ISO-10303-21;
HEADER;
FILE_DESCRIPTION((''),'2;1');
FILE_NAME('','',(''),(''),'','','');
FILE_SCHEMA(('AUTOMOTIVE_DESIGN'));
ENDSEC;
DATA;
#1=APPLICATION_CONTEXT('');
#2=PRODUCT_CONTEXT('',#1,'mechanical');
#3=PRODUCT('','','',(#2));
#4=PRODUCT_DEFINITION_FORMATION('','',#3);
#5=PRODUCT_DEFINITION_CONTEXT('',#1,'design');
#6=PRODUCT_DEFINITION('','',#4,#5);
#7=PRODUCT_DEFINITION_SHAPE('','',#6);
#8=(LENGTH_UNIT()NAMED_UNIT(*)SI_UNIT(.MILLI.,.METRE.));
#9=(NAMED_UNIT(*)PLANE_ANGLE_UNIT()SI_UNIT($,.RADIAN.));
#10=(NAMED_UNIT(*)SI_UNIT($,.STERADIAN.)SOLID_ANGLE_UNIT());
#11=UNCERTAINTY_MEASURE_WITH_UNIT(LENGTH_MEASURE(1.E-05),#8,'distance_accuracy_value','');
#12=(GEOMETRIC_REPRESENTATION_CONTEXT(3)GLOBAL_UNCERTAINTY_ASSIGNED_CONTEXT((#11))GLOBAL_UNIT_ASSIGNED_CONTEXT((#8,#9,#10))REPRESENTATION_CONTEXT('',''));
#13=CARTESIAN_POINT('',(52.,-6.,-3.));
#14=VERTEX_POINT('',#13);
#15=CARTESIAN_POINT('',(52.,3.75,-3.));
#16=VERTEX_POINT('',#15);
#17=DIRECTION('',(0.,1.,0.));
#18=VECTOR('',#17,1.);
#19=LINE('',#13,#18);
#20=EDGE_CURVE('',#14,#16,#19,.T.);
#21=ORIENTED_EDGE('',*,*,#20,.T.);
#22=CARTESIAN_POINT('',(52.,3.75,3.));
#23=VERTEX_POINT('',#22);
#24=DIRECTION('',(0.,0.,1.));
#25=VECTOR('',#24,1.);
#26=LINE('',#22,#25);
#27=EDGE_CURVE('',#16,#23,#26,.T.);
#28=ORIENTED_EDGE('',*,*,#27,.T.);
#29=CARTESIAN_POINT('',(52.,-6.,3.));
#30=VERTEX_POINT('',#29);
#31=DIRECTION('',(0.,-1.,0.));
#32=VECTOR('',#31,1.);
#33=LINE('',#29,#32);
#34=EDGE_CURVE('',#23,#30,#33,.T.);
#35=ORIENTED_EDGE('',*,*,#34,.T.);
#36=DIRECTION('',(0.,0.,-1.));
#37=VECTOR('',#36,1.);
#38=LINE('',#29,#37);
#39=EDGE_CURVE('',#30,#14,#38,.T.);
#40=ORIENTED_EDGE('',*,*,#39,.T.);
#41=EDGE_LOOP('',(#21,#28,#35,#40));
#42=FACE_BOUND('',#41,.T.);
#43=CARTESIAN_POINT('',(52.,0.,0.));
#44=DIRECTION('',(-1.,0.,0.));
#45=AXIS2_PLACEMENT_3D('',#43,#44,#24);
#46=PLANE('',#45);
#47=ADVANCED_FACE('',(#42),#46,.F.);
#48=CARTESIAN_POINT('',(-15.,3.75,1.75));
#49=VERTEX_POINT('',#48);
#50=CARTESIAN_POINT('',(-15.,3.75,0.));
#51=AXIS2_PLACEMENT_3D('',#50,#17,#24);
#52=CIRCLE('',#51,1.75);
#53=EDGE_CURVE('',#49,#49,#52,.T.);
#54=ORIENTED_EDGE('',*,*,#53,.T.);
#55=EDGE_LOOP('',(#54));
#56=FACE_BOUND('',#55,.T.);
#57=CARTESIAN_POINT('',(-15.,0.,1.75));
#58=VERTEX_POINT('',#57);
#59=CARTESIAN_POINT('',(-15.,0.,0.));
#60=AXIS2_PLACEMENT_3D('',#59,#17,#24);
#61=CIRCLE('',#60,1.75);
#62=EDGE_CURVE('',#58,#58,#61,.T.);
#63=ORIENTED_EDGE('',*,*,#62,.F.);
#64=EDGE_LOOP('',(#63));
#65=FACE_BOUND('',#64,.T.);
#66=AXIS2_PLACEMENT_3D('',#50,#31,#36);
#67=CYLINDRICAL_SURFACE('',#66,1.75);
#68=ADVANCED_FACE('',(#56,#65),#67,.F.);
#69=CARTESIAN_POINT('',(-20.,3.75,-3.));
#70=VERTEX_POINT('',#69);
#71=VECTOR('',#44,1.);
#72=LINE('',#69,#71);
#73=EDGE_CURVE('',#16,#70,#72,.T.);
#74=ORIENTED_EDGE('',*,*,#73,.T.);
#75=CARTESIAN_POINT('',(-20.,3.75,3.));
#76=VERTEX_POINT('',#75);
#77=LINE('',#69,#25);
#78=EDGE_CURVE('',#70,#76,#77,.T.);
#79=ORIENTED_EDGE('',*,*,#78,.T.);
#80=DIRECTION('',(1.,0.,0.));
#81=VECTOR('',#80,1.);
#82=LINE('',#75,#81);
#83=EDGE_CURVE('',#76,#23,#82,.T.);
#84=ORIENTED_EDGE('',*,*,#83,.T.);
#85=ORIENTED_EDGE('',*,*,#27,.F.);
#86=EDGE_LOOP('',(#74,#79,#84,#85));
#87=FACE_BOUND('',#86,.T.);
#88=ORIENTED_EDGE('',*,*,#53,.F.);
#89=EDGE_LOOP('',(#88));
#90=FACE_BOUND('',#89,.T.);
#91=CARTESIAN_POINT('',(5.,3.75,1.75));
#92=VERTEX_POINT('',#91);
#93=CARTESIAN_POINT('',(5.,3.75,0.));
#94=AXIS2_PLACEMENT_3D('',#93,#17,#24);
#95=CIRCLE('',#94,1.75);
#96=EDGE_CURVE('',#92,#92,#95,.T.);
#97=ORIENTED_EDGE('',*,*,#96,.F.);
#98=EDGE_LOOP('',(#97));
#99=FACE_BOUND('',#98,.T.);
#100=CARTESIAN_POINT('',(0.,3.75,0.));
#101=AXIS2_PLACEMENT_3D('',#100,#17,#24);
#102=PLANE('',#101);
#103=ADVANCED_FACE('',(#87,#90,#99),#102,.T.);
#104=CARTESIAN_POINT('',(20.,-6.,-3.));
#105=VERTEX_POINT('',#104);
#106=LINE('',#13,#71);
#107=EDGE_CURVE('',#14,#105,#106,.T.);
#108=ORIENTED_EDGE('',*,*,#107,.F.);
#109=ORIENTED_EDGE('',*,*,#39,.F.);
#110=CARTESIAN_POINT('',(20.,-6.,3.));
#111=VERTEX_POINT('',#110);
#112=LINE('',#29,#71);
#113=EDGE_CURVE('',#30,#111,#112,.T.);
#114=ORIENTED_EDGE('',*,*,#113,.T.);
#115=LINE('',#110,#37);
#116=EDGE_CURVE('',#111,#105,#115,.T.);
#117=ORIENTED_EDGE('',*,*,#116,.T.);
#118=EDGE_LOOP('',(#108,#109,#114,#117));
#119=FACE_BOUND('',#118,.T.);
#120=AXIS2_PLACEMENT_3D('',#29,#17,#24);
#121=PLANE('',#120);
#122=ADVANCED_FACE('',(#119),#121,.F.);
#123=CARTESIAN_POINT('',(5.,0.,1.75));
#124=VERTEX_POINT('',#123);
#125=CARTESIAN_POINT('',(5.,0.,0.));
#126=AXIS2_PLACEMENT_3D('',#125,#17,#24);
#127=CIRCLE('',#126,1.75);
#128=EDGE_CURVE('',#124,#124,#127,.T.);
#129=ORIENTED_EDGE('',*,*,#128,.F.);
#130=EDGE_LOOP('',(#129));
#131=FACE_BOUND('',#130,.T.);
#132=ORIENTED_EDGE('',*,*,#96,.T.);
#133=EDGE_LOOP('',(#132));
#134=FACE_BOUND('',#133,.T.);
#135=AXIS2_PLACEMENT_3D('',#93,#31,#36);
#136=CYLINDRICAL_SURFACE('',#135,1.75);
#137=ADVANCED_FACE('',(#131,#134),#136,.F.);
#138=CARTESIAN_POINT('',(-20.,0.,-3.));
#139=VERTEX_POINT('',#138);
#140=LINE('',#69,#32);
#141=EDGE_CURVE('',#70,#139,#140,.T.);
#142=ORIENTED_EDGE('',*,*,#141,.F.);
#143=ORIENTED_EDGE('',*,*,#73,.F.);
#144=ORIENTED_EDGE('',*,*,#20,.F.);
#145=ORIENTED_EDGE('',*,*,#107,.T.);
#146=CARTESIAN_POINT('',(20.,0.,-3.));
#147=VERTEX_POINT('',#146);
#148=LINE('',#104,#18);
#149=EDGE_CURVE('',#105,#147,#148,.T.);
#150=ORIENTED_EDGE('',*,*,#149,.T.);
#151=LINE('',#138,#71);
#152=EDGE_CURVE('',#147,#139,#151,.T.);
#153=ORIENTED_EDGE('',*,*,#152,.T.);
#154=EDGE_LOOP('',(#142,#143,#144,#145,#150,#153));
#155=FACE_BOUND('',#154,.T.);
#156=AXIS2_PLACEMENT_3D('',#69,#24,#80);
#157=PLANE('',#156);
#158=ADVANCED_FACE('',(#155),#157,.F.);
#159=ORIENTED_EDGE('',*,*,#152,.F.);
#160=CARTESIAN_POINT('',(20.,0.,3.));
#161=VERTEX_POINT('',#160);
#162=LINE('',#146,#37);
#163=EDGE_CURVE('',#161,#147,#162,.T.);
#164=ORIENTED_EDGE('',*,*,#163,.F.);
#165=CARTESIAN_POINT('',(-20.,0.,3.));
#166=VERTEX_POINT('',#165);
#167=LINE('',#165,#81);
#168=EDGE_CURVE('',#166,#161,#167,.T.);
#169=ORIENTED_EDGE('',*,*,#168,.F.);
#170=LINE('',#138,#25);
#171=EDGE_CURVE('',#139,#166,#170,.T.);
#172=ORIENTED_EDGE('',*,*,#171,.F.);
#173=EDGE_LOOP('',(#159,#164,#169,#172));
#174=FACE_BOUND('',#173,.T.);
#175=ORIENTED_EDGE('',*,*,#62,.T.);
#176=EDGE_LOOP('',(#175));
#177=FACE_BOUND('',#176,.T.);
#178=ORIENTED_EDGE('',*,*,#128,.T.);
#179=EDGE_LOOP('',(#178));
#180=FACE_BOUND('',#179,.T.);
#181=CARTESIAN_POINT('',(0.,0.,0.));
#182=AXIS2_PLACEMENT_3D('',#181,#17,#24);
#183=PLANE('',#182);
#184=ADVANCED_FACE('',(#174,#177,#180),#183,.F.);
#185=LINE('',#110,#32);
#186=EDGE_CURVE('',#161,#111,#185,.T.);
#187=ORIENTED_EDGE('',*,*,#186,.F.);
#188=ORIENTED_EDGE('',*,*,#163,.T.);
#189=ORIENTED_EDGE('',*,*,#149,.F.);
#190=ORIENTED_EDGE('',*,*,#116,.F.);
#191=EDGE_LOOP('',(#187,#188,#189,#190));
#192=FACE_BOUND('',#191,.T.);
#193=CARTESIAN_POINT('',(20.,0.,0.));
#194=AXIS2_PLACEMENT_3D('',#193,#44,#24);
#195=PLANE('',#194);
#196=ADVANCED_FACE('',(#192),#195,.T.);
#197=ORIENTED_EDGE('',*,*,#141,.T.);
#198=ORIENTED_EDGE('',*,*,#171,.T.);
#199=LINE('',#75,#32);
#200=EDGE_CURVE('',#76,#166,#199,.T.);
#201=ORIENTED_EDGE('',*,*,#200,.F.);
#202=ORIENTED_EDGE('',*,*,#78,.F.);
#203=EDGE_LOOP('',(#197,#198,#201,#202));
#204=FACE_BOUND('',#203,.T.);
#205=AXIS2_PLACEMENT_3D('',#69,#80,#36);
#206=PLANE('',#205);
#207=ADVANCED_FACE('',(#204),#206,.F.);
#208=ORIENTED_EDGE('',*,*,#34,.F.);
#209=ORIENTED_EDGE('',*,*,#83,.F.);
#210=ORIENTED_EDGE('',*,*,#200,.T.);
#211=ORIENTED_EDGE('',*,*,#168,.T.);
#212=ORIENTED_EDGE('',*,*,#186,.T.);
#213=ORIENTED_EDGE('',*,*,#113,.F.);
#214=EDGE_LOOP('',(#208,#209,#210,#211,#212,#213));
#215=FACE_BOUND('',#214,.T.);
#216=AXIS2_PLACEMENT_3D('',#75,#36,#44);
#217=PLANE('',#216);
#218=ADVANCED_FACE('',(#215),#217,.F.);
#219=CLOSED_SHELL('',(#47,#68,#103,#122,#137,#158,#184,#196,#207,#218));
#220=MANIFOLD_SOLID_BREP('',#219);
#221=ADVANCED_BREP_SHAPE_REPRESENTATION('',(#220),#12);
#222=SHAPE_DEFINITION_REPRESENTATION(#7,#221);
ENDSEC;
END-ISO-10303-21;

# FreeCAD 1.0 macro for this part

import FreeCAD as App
import Part
import Sketcher

doc = App.newDocument("Part")
body = doc.addObject("PartDesign::Body", "Body")

sketch1 = body.newObject("Sketcher::SketchObject", "Sketch")
sketch1.AttachmentSupport = (doc.getObject("XZ_Plane"), [""])
sketch1.MapMode = "FlatFace"
sketch1.addGeometry([
    Part.LineSegment(App.Vector(-20, -3, 0), App.Vector(-20, 3, 0)),
    Part.LineSegment(App.Vector(-20, 3, 0), App.Vector(20, 3, 0)),
    Part.LineSegment(App.Vector(20, 3, 0), App.Vector(20, -3, 0)),
    Part.LineSegment(App.Vector(20, -3, 0), App.Vector(-20, -3, 0)),
    Part.Circle(App.Vector(-15, 0, 0), App.Vector(0, 0, 1), 1.8),
    Part.Circle(App.Vector(5, 0, 0), App.Vector(0, 0, 1), 1.8),
], False)
sketch1.addConstraint([
    Sketcher.Constraint("Coincident", 0, 2, 1, 1),
    Sketcher.Constraint("Coincident", 1, 2, 2, 1),
    Sketcher.Constraint("Coincident", 2, 2, 3, 1),
    Sketcher.Constraint("Coincident", 3, 2, 0, 1),
    Sketcher.Constraint("Vertical", 0),
    Sketcher.Constraint("Horizontal", 1),
    Sketcher.Constraint("Vertical", 2),
    Sketcher.Constraint("Horizontal", 3),
    Sketcher.Constraint("Equal", 4, 5),
    Sketcher.Constraint("Symmetric", 0, 2, 2, 2, -1, 1),
    Sketcher.Constraint("PointOnObject", 4, 3, -1),
    Sketcher.Constraint("PointOnObject", 5, 3, -1),
    Sketcher.Constraint("Diameter", 4, 3.5),
    Sketcher.Constraint("DistanceX", 1, 1, 1, 2, 40.0),
    Sketcher.Constraint("DistanceY", 0, 1, 0, 2, 6.0),
    Sketcher.Constraint("DistanceX", 4, 3, -1, 1, 15.0),
    Sketcher.Constraint("DistanceX", -1, 1, 5, 3, 5.0),
])
pad1 = body.newObject("PartDesign::Pad", "Pad")
pad1.Profile = sketch1
pad1.Length = 3.75
pad1.Reversed = True

sketch2 = body.newObject("Sketcher::SketchObject", "Sketch001")
sketch2.AttachmentSupport = (doc.getObject("YZ_Plane"), [""])
sketch2.MapMode = "FlatFace"
sketch2.AttachmentOffset = App.Placement(App.Vector(0, 0, 20), App.Rotation())
sketch2.addGeometry([
    Part.LineSegment(App.Vector(4, 3, 0), App.Vector(-6, 3, 0)),
    Part.LineSegment(App.Vector(-6, 3, 0), App.Vector(-6, -3, 0)),
    Part.LineSegment(App.Vector(-6, -3, 0), App.Vector(4, -3, 0)),
    Part.LineSegment(App.Vector(4, -3, 0), App.Vector(4, 3, 0)),
], False)
sketch2.addConstraint([
    Sketcher.Constraint("Coincident", 0, 2, 1, 1),
    Sketcher.Constraint("Coincident", 1, 2, 2, 1),
    Sketcher.Constraint("Coincident", 2, 2, 3, 1),
    Sketcher.Constraint("Coincident", 3, 2, 0, 1),
    Sketcher.Constraint("Horizontal", 0),
    Sketcher.Constraint("Vertical", 1),
    Sketcher.Constraint("Horizontal", 2),
    Sketcher.Constraint("Vertical", 3),
    Sketcher.Constraint("DistanceY", 1, 2, 1, 1, 6.0),
    Sketcher.Constraint("DistanceX", 0, 2, -1, 1, 6.0),
    Sketcher.Constraint("DistanceY", -1, 1, 0, 2, 3.0),
    Sketcher.Constraint("DistanceX", 0, 2, 0, 1, 9.75),
])
pad2 = body.newObject("PartDesign::Pad", "Pad001")
pad2.Profile = sketch2
pad2.Length = 32

doc.recompute()
